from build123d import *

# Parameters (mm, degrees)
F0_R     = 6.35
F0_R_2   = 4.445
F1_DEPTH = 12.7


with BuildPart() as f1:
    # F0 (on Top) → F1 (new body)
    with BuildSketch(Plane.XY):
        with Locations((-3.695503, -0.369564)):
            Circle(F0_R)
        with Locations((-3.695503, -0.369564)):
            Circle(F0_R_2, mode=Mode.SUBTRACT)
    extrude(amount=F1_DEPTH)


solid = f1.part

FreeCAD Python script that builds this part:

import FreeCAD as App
import Part
import Sketcher
from FreeCAD import Vector
Q = App.Units.Quantity

doc = App.newDocument("Part")
body = doc.addObject("PartDesign::Body", "Body")

# Sketch on XY plane
sketch1 = body.newObject("Sketcher::SketchObject", "Sketch")
sketch1.AttachmentSupport = (doc.getObject("XY_Plane"), [""])
sketch1.MapMode = "FlatFace"
sketch1.addGeometry([
    Part.Circle(Vector(-3.695503, -0.369564, 0), Vector(0, 0, 1), 6.35),
    Part.Circle(Vector(-3.695503, -0.369564, 0), Vector(0, 0, 1), 4.445),
], False)
sketch1.addConstraint([
    Sketcher.Constraint("Coincident", 1, 3, 0, 3),
    Sketcher.Constraint("Diameter", 0, Q("0.5 in")),
    Sketcher.Constraint("Diameter", 1, Q("0.35 in")),
    Sketcher.Constraint("DistanceX", 0, 3, -1, 1, Q("3.695503 mm")),
    Sketcher.Constraint("DistanceY", 0, 3, -1, 1, Q("0.369564 mm")),
])
pad1 = body.newObject("PartDesign::Pad", "Pad")
pad1.Profile = sketch1
pad1.Length = Q("0.5 in")

doc.recompute()
